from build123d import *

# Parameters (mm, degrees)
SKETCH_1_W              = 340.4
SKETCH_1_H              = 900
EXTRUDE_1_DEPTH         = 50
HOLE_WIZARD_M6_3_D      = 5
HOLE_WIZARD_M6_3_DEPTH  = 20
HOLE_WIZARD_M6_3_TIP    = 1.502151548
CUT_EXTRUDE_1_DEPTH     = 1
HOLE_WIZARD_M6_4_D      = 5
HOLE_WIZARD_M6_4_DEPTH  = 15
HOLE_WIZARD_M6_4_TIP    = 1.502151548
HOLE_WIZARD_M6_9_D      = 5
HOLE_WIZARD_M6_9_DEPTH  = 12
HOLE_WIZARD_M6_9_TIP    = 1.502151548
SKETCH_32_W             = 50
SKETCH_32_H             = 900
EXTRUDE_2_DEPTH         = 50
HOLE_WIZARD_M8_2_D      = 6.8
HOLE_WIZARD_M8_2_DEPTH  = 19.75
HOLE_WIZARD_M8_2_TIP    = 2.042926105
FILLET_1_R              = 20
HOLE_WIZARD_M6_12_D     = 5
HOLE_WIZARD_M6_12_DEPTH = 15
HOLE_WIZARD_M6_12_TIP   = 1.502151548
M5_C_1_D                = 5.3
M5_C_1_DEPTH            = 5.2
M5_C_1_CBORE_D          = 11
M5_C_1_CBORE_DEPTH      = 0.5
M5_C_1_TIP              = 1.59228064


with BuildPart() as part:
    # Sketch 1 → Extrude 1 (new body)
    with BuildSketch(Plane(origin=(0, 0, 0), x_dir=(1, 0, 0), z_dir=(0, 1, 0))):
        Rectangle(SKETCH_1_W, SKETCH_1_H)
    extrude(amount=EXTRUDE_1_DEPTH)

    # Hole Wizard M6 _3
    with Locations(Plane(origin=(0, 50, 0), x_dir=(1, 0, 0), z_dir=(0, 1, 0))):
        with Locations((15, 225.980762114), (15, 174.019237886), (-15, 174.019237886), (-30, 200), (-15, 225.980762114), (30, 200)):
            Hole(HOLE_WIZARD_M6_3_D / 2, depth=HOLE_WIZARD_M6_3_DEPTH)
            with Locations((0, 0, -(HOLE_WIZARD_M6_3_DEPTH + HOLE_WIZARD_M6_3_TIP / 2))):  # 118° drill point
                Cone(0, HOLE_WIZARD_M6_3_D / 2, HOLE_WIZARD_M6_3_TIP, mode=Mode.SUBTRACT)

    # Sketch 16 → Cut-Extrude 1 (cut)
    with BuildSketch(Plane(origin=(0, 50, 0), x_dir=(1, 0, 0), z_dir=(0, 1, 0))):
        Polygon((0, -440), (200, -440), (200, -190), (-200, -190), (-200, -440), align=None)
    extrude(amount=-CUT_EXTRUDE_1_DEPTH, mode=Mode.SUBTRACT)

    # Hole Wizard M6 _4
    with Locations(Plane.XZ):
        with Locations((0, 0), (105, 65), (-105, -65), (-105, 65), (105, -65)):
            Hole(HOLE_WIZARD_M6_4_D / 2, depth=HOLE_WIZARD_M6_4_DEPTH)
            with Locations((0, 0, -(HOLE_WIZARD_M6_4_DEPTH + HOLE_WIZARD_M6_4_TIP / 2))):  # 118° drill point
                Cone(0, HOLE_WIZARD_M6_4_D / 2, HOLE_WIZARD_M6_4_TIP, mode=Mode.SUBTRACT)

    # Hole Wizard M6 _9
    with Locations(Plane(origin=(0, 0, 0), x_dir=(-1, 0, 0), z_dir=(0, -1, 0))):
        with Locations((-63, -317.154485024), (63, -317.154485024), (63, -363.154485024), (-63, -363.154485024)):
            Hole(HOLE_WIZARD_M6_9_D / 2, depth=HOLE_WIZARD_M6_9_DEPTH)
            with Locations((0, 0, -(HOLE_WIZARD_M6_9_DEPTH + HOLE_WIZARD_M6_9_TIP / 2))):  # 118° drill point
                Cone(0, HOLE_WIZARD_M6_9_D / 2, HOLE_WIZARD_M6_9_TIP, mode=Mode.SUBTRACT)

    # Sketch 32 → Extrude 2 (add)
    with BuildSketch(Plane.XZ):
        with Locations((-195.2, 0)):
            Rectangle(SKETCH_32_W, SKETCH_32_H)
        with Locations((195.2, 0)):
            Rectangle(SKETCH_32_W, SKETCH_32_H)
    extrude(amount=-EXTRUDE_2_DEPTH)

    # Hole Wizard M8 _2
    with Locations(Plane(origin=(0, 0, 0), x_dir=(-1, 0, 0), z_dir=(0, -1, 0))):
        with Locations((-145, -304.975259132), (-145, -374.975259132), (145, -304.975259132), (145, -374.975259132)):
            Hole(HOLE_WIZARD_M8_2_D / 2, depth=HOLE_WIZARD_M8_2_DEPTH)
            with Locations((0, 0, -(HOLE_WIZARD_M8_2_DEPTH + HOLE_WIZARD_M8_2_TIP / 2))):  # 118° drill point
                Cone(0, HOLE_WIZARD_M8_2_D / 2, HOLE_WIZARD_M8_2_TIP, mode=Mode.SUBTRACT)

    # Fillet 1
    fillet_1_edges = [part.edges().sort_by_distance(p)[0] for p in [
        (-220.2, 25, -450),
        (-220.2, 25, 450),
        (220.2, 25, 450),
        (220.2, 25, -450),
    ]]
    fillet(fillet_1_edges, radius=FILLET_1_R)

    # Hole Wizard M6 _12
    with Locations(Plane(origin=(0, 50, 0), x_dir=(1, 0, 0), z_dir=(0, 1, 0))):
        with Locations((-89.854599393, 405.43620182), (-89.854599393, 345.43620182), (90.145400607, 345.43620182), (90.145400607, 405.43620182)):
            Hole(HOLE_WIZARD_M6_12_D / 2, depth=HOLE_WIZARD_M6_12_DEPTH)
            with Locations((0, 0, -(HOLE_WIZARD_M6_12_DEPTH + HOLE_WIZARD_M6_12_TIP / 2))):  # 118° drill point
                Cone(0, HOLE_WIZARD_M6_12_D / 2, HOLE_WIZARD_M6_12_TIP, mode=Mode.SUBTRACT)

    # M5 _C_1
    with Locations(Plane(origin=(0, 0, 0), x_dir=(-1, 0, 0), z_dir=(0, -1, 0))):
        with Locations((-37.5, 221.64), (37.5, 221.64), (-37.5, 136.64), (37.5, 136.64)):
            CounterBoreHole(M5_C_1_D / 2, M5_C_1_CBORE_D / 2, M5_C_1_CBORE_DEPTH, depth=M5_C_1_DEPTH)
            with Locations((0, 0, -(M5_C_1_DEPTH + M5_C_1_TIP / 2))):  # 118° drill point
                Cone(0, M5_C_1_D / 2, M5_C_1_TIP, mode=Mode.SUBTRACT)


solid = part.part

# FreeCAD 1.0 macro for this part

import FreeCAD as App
import Part
import Sketcher


def edges_at(feature, points):
    """Names of the edges that pass closest to the given points."""
    edges = feature.Shape.Edges
    near = lambda p: min(range(len(edges)), key=lambda i: edges[i].distToShape(Part.Vertex(*p))[0])
    return sorted({f"Edge{near(p) + 1}" for p in points})


def add_polygon(sketch, points):
    """Adds a closed chain of lines whose ends are joined by coincident constraints."""
    first, n = sketch.GeometryCount, len(points)
    for a, b in zip(points, points[1:] + points[:1]):
        sketch.addGeometry(Part.LineSegment(App.Vector(*a, 0), App.Vector(*b, 0)), False)
    for i in range(n):
        sketch.addConstraint(Sketcher.Constraint("Coincident", first + i, 2, first + (i + 1) % n, 1))

doc = App.newDocument("Part")
body = doc.addObject("PartDesign::Body", "Body")

sketch1 = body.newObject("Sketcher::SketchObject", "Sketch")
sketch1.AttachmentSupport = (doc.getObject("XZ_Plane"), [""])
sketch1.MapMode = "FlatFace"
add_polygon(sketch1, [(-170, -450), (-170, 450), (170, 450), (170, -450)])
sketch1.addConstraint([
    Sketcher.Constraint("Vertical", 0),
    Sketcher.Constraint("Horizontal", 1),
    Sketcher.Constraint("Vertical", 2),
    Sketcher.Constraint("Horizontal", 3),
    Sketcher.Constraint("Symmetric", 0, 2, 2, 2, -1, 1),
    Sketcher.Constraint("DistanceY", 0, 1, 0, 2, 900.0),
    Sketcher.Constraint("DistanceX", 1, 1, 1, 2, 340.4),
])
pad1 = body.newObject("PartDesign::Pad", "Pad")
pad1.Profile = sketch1
pad1.Length = 50
pad1.Reversed = True

sketch2 = body.newObject("Sketcher::SketchObject", "Sketch001")
sketch2.AttachmentSupport = (doc.getObject("XZ_Plane"), [""])
sketch2.MapMode = "FlatFace"
sketch2.AttachmentOffset = App.Placement(App.Vector(0, 0, -50), App.Rotation())
sketch2.addGeometry([
    Part.Circle(App.Vector(15, -226, 0), App.Vector(0, 0, 1), 2.5),
    Part.Circle(App.Vector(15, -174, 0), App.Vector(0, 0, 1), 2.5),
    Part.Circle(App.Vector(-15, -174, 0), App.Vector(0, 0, 1), 2.5),
    Part.Circle(App.Vector(-30, -200, 0), App.Vector(0, 0, 1), 2.5),
    Part.Circle(App.Vector(-15, -226, 0), App.Vector(0, 0, 1), 2.5),
    Part.Circle(App.Vector(30, -200, 0), App.Vector(0, 0, 1), 2.5),
], False)
sketch2.addConstraint([
    Sketcher.Constraint("Equal", 0, 1),
    Sketcher.Constraint("Equal", 1, 2),
    Sketcher.Constraint("Equal", 2, 3),
    Sketcher.Constraint("Equal", 3, 4),
    Sketcher.Constraint("Equal", 4, 5),
    Sketcher.Constraint("Symmetric", 1, 3, 2, 3, -2),
    Sketcher.Constraint("Symmetric", 0, 3, 4, 3, -2),
    Sketcher.Constraint("Symmetric", 3, 3, 5, 3, -2),
    Sketcher.Constraint("Vertical", 0, 3, 1, 3),
    Sketcher.Constraint("Diameter", 0, 5.0),
    Sketcher.Constraint("DistanceX", -1, 1, 0, 3, 15.0),
    Sketcher.Constraint("DistanceX", 3, 3, -1, 1, 30.0),
    Sketcher.Constraint("DistanceY", 3, 3, -1, 1, 200.0),
    Sketcher.Constraint("DistanceY", 0, 3, -1, 1, 225.980762),
    Sketcher.Constraint("DistanceY", 1, 3, -1, 1, 174.019238),
])
doc.recompute()
hole = body.newObject("PartDesign::Hole", "Hole")
hole.Profile = sketch2
hole.ThreadType = "None"
hole.Diameter = 5
hole.DepthType = "Dimension"
hole.Depth = 20
hole.DrillPoint = "Angled"
hole.DrillPointAngle = 118
hole.Reversed = True

sketch3 = body.newObject("Sketcher::SketchObject", "Sketch002")
sketch3.AttachmentSupport = (doc.getObject("XZ_Plane"), [""])
sketch3.MapMode = "FlatFace"
sketch3.AttachmentOffset = App.Placement(App.Vector(0, 0, -50), App.Rotation())
add_polygon(sketch3, [(200, 440), (200, 190), (-200, 190), (-200, 440)])
sketch3.addConstraint([
    Sketcher.Constraint("Vertical", 0),
    Sketcher.Constraint("Horizontal", 1),
    Sketcher.Constraint("Vertical", 2),
    Sketcher.Constraint("Horizontal", 3),
    Sketcher.Constraint("DistanceX", 1, 2, 1, 1, 400.0),
    Sketcher.Constraint("DistanceY", 0, 2, 0, 1, 250.0),
    Sketcher.Constraint("DistanceX", -1, 1, 0, 2, 200.0),
    Sketcher.Constraint("DistanceY", -1, 1, 0, 2, 190.0),
])
pocket1 = body.newObject("PartDesign::Pocket", "Pocket")
pocket1.Profile = sketch3
pocket1.Length = 1
pocket1.Reversed = True

sketch4 = body.newObject("Sketcher::SketchObject", "Sketch003")
sketch4.AttachmentSupport = (doc.getObject("XZ_Plane"), [""])
sketch4.MapMode = "FlatFace"
sketch4.addGeometry([
    Part.Circle(App.Vector(0, 0, 0), App.Vector(0, 0, 1), 2.5),
    Part.Circle(App.Vector(105, 65, 0), App.Vector(0, 0, 1), 2.5),
    Part.Circle(App.Vector(-105, -65, 0), App.Vector(0, 0, 1), 2.5),
    Part.Circle(App.Vector(-105, 65, 0), App.Vector(0, 0, 1), 2.5),
    Part.Circle(App.Vector(105, -65, 0), App.Vector(0, 0, 1), 2.5),
], False)
sketch4.addConstraint([
    Sketcher.Constraint("Coincident", 0, 3, -1, 1),
    Sketcher.Constraint("Equal", 0, 1),
    Sketcher.Constraint("Equal", 1, 2),
    Sketcher.Constraint("Equal", 2, 3),
    Sketcher.Constraint("Equal", 3, 4),
    Sketcher.Constraint("Symmetric", 1, 3, 2, 3, -1, 1),
    Sketcher.Constraint("Symmetric", 3, 3, 4, 3, -1, 1),
    Sketcher.Constraint("Symmetric", 1, 3, 3, 3, -2),
    Sketcher.Constraint("Diameter", 0, 5.0),
    Sketcher.Constraint("DistanceX", -1, 1, 1, 3, 105.0),
    Sketcher.Constraint("DistanceY", -1, 1, 1, 3, 65.0),
])
doc.recompute()
hole2 = body.newObject("PartDesign::Hole", "Hole001")
hole2.Profile = sketch4
hole2.ThreadType = "None"
hole2.Diameter = 5
hole2.DepthType = "Dimension"
hole2.Depth = 15
hole2.DrillPoint = "Angled"
hole2.DrillPointAngle = 118

sketch5 = body.newObject("Sketcher::SketchObject", "Sketch004")
sketch5.AttachmentSupport = (doc.getObject("XZ_Plane"), [""])
sketch5.MapMode = "FlatFace"
sketch5.addGeometry([
    Part.Circle(App.Vector(63, 317.2, 0), App.Vector(0, 0, 1), 2.5),
    Part.Circle(App.Vector(-63, 317.2, 0), App.Vector(0, 0, 1), 2.5),
    Part.Circle(App.Vector(-63, 363.2, 0), App.Vector(0, 0, 1), 2.5),
    Part.Circle(App.Vector(63, 363.2, 0), App.Vector(0, 0, 1), 2.5),
], False)
sketch5.addConstraint([
    Sketcher.Constraint("Equal", 0, 1),
    Sketcher.Constraint("Equal", 1, 2),
    Sketcher.Constraint("Equal", 2, 3),
    Sketcher.Constraint("Symmetric", 0, 3, 1, 3, -2),
    Sketcher.Constraint("Symmetric", 2, 3, 3, 3, -2),
    Sketcher.Constraint("Vertical", 1, 3, 2, 3),
    Sketcher.Constraint("Diameter", 0, 5.0),
    Sketcher.Constraint("DistanceX", -1, 1, 0, 3, 63.0),
    Sketcher.Constraint("DistanceY", 1, 3, 2, 3, 46.0),
    Sketcher.Constraint("DistanceY", -1, 1, 0, 3, 317.154485),
])
doc.recompute()
hole3 = body.newObject("PartDesign::Hole", "Hole002")
hole3.Profile = sketch5
hole3.ThreadType = "None"
hole3.Diameter = 5
hole3.DepthType = "Dimension"
hole3.Depth = 12
hole3.DrillPoint = "Angled"
hole3.DrillPointAngle = 118

sketch6 = body.newObject("Sketcher::SketchObject", "Sketch005")
sketch6.AttachmentSupport = (doc.getObject("XZ_Plane"), [""])
sketch6.MapMode = "FlatFace"
add_polygon(sketch6, [(-220, 450), (-220, -450), (-170, -450), (-170, 450)])
add_polygon(sketch6, [(170, 450), (170, -450), (220, -450), (220, 450)])
sketch6.addConstraint([
    Sketcher.Constraint("Vertical", 0),
    Sketcher.Constraint("Horizontal", 1),
    Sketcher.Constraint("Vertical", 2),
    Sketcher.Constraint("Horizontal", 3),
    Sketcher.Constraint("Vertical", 4),
    Sketcher.Constraint("Horizontal", 5),
    Sketcher.Constraint("Vertical", 6),
    Sketcher.Constraint("Horizontal", 7),
    Sketcher.Constraint("Symmetric", 2, 2, 4, 2, -1, 1),
    Sketcher.Constraint("Symmetric", 0, 2, 6, 2, -1, 1),
    Sketcher.Constraint("Horizontal", 1, 2, 4, 2),
    Sketcher.Constraint("DistanceX", 1, 1, 1, 2, 50.0),
    Sketcher.Constraint("DistanceY", 0, 2, 0, 1, 900.0),
    Sketcher.Constraint("DistanceX", 0, 2, -1, 1, 220.2),
])
pad2 = body.newObject("PartDesign::Pad", "Pad001")
pad2.Profile = sketch6
pad2.Length = 50
pad2.Reversed = True

sketch7 = body.newObject("Sketcher::SketchObject", "Sketch006")
sketch7.AttachmentSupport = (doc.getObject("XZ_Plane"), [""])
sketch7.MapMode = "FlatFace"
sketch7.addGeometry([
    Part.Circle(App.Vector(145, 305, 0), App.Vector(0, 0, 1), 3.4),
    Part.Circle(App.Vector(145, 375, 0), App.Vector(0, 0, 1), 3.4),
    Part.Circle(App.Vector(-145, 305, 0), App.Vector(0, 0, 1), 3.4),
    Part.Circle(App.Vector(-145, 375, 0), App.Vector(0, 0, 1), 3.4),
], False)
sketch7.addConstraint([
    Sketcher.Constraint("Equal", 0, 1),
    Sketcher.Constraint("Equal", 1, 2),
    Sketcher.Constraint("Equal", 2, 3),
    Sketcher.Constraint("Symmetric", 0, 3, 2, 3, -2),
    Sketcher.Constraint("Symmetric", 1, 3, 3, 3, -2),
    Sketcher.Constraint("Vertical", 0, 3, 1, 3),
    Sketcher.Constraint("Diameter", 0, 6.8),
    Sketcher.Constraint("DistanceX", -1, 1, 0, 3, 145.0),
    Sketcher.Constraint("DistanceY", 0, 3, 1, 3, 70.0),
    Sketcher.Constraint("DistanceY", -1, 1, 0, 3, 304.975259),
])
doc.recompute()
hole4 = body.newObject("PartDesign::Hole", "Hole003")
hole4.Profile = sketch7
hole4.ThreadType = "None"
hole4.Diameter = 6.8
hole4.DepthType = "Dimension"
hole4.Depth = 19.75
hole4.DrillPoint = "Angled"
hole4.DrillPointAngle = 118
doc.recompute()

fillet = body.newObject("PartDesign::Fillet", "Fillet")
fillet.Base = (hole4, edges_at(hole4, [
    (-220.2, 25, -450),
    (-220.2, 25, 450),
    (220.2, 25, 450),
    (220.2, 25, -450),
]))
fillet.Radius = 20

sketch8 = body.newObject("Sketcher::SketchObject", "Sketch007")
sketch8.AttachmentSupport = (doc.getObject("XZ_Plane"), [""])
sketch8.MapMode = "FlatFace"
sketch8.AttachmentOffset = App.Placement(App.Vector(0, 0, -50), App.Rotation())
sketch8.addGeometry([
    Part.Circle(App.Vector(-89.9, -405.4, 0), App.Vector(0, 0, 1), 2.5),
    Part.Circle(App.Vector(-89.9, -345.4, 0), App.Vector(0, 0, 1), 2.5),
    Part.Circle(App.Vector(90.1, -345.4, 0), App.Vector(0, 0, 1), 2.5),
    Part.Circle(App.Vector(90.1, -405.4, 0), App.Vector(0, 0, 1), 2.5),
], False)
sketch8.addConstraint([
    Sketcher.Constraint("Equal", 0, 1),
    Sketcher.Constraint("Equal", 1, 2),
    Sketcher.Constraint("Equal", 2, 3),
    Sketcher.Constraint("Horizontal", 1, 3, 2, 3),
    Sketcher.Constraint("Horizontal", 0, 3, 3, 3),
    Sketcher.Constraint("Vertical", 0, 3, 1, 3),
    Sketcher.Constraint("Vertical", 2, 3, 3, 3),
    Sketcher.Constraint("Diameter", 0, 5.0),
    Sketcher.Constraint("DistanceY", 0, 3, 1, 3, 60.0),
    Sketcher.Constraint("DistanceX", 1, 3, 2, 3, 180.0),
    Sketcher.Constraint("DistanceX", 0, 3, -1, 1, 89.854599),
    Sketcher.Constraint("DistanceY", 0, 3, -1, 1, 405.436202),
])
doc.recompute()
hole5 = body.newObject("PartDesign::Hole", "Hole004")
hole5.Profile = sketch8
hole5.ThreadType = "None"
hole5.Diameter = 5
hole5.DepthType = "Dimension"
hole5.Depth = 15
hole5.DrillPoint = "Angled"
hole5.DrillPointAngle = 118
hole5.Reversed = True

sketch9 = body.newObject("Sketcher::SketchObject", "Sketch008")
sketch9.AttachmentSupport = (doc.getObject("XZ_Plane"), [""])
sketch9.MapMode = "FlatFace"
sketch9.addGeometry([
    Part.Circle(App.Vector(37.5, -221.6, 0), App.Vector(0, 0, 1), 2.6),
    Part.Circle(App.Vector(-37.5, -221.6, 0), App.Vector(0, 0, 1), 2.6),
    Part.Circle(App.Vector(37.5, -136.6, 0), App.Vector(0, 0, 1), 2.6),
    Part.Circle(App.Vector(-37.5, -136.6, 0), App.Vector(0, 0, 1), 2.6),
], False)
sketch9.addConstraint([
    Sketcher.Constraint("Equal", 0, 1),
    Sketcher.Constraint("Equal", 1, 2),
    Sketcher.Constraint("Equal", 2, 3),
    Sketcher.Constraint("Symmetric", 0, 3, 1, 3, -2),
    Sketcher.Constraint("Symmetric", 2, 3, 3, 3, -2),
    Sketcher.Constraint("Vertical", 0, 3, 2, 3),
    Sketcher.Constraint("Diameter", 0, 5.3),
    Sketcher.Constraint("DistanceX", 1, 3, 0, 3, 75.0),
    Sketcher.Constraint("DistanceY", 0, 3, 2, 3, 85.0),
    Sketcher.Constraint("DistanceY", 0, 3, -1, 1, 221.64),
])
doc.recompute()
hole6 = body.newObject("PartDesign::Hole", "Hole005")
hole6.Profile = sketch9
hole6.ThreadType = "None"
hole6.Diameter = 5.3
hole6.DepthType = "Dimension"
hole6.Depth = 5.2
hole6.DrillPoint = "Angled"
hole6.DrillPointAngle = 118
hole6.HoleCutType = "Counterbore"
hole6.HoleCutDiameter = 11
hole6.HoleCutDepth = 0.5

doc.recompute()
